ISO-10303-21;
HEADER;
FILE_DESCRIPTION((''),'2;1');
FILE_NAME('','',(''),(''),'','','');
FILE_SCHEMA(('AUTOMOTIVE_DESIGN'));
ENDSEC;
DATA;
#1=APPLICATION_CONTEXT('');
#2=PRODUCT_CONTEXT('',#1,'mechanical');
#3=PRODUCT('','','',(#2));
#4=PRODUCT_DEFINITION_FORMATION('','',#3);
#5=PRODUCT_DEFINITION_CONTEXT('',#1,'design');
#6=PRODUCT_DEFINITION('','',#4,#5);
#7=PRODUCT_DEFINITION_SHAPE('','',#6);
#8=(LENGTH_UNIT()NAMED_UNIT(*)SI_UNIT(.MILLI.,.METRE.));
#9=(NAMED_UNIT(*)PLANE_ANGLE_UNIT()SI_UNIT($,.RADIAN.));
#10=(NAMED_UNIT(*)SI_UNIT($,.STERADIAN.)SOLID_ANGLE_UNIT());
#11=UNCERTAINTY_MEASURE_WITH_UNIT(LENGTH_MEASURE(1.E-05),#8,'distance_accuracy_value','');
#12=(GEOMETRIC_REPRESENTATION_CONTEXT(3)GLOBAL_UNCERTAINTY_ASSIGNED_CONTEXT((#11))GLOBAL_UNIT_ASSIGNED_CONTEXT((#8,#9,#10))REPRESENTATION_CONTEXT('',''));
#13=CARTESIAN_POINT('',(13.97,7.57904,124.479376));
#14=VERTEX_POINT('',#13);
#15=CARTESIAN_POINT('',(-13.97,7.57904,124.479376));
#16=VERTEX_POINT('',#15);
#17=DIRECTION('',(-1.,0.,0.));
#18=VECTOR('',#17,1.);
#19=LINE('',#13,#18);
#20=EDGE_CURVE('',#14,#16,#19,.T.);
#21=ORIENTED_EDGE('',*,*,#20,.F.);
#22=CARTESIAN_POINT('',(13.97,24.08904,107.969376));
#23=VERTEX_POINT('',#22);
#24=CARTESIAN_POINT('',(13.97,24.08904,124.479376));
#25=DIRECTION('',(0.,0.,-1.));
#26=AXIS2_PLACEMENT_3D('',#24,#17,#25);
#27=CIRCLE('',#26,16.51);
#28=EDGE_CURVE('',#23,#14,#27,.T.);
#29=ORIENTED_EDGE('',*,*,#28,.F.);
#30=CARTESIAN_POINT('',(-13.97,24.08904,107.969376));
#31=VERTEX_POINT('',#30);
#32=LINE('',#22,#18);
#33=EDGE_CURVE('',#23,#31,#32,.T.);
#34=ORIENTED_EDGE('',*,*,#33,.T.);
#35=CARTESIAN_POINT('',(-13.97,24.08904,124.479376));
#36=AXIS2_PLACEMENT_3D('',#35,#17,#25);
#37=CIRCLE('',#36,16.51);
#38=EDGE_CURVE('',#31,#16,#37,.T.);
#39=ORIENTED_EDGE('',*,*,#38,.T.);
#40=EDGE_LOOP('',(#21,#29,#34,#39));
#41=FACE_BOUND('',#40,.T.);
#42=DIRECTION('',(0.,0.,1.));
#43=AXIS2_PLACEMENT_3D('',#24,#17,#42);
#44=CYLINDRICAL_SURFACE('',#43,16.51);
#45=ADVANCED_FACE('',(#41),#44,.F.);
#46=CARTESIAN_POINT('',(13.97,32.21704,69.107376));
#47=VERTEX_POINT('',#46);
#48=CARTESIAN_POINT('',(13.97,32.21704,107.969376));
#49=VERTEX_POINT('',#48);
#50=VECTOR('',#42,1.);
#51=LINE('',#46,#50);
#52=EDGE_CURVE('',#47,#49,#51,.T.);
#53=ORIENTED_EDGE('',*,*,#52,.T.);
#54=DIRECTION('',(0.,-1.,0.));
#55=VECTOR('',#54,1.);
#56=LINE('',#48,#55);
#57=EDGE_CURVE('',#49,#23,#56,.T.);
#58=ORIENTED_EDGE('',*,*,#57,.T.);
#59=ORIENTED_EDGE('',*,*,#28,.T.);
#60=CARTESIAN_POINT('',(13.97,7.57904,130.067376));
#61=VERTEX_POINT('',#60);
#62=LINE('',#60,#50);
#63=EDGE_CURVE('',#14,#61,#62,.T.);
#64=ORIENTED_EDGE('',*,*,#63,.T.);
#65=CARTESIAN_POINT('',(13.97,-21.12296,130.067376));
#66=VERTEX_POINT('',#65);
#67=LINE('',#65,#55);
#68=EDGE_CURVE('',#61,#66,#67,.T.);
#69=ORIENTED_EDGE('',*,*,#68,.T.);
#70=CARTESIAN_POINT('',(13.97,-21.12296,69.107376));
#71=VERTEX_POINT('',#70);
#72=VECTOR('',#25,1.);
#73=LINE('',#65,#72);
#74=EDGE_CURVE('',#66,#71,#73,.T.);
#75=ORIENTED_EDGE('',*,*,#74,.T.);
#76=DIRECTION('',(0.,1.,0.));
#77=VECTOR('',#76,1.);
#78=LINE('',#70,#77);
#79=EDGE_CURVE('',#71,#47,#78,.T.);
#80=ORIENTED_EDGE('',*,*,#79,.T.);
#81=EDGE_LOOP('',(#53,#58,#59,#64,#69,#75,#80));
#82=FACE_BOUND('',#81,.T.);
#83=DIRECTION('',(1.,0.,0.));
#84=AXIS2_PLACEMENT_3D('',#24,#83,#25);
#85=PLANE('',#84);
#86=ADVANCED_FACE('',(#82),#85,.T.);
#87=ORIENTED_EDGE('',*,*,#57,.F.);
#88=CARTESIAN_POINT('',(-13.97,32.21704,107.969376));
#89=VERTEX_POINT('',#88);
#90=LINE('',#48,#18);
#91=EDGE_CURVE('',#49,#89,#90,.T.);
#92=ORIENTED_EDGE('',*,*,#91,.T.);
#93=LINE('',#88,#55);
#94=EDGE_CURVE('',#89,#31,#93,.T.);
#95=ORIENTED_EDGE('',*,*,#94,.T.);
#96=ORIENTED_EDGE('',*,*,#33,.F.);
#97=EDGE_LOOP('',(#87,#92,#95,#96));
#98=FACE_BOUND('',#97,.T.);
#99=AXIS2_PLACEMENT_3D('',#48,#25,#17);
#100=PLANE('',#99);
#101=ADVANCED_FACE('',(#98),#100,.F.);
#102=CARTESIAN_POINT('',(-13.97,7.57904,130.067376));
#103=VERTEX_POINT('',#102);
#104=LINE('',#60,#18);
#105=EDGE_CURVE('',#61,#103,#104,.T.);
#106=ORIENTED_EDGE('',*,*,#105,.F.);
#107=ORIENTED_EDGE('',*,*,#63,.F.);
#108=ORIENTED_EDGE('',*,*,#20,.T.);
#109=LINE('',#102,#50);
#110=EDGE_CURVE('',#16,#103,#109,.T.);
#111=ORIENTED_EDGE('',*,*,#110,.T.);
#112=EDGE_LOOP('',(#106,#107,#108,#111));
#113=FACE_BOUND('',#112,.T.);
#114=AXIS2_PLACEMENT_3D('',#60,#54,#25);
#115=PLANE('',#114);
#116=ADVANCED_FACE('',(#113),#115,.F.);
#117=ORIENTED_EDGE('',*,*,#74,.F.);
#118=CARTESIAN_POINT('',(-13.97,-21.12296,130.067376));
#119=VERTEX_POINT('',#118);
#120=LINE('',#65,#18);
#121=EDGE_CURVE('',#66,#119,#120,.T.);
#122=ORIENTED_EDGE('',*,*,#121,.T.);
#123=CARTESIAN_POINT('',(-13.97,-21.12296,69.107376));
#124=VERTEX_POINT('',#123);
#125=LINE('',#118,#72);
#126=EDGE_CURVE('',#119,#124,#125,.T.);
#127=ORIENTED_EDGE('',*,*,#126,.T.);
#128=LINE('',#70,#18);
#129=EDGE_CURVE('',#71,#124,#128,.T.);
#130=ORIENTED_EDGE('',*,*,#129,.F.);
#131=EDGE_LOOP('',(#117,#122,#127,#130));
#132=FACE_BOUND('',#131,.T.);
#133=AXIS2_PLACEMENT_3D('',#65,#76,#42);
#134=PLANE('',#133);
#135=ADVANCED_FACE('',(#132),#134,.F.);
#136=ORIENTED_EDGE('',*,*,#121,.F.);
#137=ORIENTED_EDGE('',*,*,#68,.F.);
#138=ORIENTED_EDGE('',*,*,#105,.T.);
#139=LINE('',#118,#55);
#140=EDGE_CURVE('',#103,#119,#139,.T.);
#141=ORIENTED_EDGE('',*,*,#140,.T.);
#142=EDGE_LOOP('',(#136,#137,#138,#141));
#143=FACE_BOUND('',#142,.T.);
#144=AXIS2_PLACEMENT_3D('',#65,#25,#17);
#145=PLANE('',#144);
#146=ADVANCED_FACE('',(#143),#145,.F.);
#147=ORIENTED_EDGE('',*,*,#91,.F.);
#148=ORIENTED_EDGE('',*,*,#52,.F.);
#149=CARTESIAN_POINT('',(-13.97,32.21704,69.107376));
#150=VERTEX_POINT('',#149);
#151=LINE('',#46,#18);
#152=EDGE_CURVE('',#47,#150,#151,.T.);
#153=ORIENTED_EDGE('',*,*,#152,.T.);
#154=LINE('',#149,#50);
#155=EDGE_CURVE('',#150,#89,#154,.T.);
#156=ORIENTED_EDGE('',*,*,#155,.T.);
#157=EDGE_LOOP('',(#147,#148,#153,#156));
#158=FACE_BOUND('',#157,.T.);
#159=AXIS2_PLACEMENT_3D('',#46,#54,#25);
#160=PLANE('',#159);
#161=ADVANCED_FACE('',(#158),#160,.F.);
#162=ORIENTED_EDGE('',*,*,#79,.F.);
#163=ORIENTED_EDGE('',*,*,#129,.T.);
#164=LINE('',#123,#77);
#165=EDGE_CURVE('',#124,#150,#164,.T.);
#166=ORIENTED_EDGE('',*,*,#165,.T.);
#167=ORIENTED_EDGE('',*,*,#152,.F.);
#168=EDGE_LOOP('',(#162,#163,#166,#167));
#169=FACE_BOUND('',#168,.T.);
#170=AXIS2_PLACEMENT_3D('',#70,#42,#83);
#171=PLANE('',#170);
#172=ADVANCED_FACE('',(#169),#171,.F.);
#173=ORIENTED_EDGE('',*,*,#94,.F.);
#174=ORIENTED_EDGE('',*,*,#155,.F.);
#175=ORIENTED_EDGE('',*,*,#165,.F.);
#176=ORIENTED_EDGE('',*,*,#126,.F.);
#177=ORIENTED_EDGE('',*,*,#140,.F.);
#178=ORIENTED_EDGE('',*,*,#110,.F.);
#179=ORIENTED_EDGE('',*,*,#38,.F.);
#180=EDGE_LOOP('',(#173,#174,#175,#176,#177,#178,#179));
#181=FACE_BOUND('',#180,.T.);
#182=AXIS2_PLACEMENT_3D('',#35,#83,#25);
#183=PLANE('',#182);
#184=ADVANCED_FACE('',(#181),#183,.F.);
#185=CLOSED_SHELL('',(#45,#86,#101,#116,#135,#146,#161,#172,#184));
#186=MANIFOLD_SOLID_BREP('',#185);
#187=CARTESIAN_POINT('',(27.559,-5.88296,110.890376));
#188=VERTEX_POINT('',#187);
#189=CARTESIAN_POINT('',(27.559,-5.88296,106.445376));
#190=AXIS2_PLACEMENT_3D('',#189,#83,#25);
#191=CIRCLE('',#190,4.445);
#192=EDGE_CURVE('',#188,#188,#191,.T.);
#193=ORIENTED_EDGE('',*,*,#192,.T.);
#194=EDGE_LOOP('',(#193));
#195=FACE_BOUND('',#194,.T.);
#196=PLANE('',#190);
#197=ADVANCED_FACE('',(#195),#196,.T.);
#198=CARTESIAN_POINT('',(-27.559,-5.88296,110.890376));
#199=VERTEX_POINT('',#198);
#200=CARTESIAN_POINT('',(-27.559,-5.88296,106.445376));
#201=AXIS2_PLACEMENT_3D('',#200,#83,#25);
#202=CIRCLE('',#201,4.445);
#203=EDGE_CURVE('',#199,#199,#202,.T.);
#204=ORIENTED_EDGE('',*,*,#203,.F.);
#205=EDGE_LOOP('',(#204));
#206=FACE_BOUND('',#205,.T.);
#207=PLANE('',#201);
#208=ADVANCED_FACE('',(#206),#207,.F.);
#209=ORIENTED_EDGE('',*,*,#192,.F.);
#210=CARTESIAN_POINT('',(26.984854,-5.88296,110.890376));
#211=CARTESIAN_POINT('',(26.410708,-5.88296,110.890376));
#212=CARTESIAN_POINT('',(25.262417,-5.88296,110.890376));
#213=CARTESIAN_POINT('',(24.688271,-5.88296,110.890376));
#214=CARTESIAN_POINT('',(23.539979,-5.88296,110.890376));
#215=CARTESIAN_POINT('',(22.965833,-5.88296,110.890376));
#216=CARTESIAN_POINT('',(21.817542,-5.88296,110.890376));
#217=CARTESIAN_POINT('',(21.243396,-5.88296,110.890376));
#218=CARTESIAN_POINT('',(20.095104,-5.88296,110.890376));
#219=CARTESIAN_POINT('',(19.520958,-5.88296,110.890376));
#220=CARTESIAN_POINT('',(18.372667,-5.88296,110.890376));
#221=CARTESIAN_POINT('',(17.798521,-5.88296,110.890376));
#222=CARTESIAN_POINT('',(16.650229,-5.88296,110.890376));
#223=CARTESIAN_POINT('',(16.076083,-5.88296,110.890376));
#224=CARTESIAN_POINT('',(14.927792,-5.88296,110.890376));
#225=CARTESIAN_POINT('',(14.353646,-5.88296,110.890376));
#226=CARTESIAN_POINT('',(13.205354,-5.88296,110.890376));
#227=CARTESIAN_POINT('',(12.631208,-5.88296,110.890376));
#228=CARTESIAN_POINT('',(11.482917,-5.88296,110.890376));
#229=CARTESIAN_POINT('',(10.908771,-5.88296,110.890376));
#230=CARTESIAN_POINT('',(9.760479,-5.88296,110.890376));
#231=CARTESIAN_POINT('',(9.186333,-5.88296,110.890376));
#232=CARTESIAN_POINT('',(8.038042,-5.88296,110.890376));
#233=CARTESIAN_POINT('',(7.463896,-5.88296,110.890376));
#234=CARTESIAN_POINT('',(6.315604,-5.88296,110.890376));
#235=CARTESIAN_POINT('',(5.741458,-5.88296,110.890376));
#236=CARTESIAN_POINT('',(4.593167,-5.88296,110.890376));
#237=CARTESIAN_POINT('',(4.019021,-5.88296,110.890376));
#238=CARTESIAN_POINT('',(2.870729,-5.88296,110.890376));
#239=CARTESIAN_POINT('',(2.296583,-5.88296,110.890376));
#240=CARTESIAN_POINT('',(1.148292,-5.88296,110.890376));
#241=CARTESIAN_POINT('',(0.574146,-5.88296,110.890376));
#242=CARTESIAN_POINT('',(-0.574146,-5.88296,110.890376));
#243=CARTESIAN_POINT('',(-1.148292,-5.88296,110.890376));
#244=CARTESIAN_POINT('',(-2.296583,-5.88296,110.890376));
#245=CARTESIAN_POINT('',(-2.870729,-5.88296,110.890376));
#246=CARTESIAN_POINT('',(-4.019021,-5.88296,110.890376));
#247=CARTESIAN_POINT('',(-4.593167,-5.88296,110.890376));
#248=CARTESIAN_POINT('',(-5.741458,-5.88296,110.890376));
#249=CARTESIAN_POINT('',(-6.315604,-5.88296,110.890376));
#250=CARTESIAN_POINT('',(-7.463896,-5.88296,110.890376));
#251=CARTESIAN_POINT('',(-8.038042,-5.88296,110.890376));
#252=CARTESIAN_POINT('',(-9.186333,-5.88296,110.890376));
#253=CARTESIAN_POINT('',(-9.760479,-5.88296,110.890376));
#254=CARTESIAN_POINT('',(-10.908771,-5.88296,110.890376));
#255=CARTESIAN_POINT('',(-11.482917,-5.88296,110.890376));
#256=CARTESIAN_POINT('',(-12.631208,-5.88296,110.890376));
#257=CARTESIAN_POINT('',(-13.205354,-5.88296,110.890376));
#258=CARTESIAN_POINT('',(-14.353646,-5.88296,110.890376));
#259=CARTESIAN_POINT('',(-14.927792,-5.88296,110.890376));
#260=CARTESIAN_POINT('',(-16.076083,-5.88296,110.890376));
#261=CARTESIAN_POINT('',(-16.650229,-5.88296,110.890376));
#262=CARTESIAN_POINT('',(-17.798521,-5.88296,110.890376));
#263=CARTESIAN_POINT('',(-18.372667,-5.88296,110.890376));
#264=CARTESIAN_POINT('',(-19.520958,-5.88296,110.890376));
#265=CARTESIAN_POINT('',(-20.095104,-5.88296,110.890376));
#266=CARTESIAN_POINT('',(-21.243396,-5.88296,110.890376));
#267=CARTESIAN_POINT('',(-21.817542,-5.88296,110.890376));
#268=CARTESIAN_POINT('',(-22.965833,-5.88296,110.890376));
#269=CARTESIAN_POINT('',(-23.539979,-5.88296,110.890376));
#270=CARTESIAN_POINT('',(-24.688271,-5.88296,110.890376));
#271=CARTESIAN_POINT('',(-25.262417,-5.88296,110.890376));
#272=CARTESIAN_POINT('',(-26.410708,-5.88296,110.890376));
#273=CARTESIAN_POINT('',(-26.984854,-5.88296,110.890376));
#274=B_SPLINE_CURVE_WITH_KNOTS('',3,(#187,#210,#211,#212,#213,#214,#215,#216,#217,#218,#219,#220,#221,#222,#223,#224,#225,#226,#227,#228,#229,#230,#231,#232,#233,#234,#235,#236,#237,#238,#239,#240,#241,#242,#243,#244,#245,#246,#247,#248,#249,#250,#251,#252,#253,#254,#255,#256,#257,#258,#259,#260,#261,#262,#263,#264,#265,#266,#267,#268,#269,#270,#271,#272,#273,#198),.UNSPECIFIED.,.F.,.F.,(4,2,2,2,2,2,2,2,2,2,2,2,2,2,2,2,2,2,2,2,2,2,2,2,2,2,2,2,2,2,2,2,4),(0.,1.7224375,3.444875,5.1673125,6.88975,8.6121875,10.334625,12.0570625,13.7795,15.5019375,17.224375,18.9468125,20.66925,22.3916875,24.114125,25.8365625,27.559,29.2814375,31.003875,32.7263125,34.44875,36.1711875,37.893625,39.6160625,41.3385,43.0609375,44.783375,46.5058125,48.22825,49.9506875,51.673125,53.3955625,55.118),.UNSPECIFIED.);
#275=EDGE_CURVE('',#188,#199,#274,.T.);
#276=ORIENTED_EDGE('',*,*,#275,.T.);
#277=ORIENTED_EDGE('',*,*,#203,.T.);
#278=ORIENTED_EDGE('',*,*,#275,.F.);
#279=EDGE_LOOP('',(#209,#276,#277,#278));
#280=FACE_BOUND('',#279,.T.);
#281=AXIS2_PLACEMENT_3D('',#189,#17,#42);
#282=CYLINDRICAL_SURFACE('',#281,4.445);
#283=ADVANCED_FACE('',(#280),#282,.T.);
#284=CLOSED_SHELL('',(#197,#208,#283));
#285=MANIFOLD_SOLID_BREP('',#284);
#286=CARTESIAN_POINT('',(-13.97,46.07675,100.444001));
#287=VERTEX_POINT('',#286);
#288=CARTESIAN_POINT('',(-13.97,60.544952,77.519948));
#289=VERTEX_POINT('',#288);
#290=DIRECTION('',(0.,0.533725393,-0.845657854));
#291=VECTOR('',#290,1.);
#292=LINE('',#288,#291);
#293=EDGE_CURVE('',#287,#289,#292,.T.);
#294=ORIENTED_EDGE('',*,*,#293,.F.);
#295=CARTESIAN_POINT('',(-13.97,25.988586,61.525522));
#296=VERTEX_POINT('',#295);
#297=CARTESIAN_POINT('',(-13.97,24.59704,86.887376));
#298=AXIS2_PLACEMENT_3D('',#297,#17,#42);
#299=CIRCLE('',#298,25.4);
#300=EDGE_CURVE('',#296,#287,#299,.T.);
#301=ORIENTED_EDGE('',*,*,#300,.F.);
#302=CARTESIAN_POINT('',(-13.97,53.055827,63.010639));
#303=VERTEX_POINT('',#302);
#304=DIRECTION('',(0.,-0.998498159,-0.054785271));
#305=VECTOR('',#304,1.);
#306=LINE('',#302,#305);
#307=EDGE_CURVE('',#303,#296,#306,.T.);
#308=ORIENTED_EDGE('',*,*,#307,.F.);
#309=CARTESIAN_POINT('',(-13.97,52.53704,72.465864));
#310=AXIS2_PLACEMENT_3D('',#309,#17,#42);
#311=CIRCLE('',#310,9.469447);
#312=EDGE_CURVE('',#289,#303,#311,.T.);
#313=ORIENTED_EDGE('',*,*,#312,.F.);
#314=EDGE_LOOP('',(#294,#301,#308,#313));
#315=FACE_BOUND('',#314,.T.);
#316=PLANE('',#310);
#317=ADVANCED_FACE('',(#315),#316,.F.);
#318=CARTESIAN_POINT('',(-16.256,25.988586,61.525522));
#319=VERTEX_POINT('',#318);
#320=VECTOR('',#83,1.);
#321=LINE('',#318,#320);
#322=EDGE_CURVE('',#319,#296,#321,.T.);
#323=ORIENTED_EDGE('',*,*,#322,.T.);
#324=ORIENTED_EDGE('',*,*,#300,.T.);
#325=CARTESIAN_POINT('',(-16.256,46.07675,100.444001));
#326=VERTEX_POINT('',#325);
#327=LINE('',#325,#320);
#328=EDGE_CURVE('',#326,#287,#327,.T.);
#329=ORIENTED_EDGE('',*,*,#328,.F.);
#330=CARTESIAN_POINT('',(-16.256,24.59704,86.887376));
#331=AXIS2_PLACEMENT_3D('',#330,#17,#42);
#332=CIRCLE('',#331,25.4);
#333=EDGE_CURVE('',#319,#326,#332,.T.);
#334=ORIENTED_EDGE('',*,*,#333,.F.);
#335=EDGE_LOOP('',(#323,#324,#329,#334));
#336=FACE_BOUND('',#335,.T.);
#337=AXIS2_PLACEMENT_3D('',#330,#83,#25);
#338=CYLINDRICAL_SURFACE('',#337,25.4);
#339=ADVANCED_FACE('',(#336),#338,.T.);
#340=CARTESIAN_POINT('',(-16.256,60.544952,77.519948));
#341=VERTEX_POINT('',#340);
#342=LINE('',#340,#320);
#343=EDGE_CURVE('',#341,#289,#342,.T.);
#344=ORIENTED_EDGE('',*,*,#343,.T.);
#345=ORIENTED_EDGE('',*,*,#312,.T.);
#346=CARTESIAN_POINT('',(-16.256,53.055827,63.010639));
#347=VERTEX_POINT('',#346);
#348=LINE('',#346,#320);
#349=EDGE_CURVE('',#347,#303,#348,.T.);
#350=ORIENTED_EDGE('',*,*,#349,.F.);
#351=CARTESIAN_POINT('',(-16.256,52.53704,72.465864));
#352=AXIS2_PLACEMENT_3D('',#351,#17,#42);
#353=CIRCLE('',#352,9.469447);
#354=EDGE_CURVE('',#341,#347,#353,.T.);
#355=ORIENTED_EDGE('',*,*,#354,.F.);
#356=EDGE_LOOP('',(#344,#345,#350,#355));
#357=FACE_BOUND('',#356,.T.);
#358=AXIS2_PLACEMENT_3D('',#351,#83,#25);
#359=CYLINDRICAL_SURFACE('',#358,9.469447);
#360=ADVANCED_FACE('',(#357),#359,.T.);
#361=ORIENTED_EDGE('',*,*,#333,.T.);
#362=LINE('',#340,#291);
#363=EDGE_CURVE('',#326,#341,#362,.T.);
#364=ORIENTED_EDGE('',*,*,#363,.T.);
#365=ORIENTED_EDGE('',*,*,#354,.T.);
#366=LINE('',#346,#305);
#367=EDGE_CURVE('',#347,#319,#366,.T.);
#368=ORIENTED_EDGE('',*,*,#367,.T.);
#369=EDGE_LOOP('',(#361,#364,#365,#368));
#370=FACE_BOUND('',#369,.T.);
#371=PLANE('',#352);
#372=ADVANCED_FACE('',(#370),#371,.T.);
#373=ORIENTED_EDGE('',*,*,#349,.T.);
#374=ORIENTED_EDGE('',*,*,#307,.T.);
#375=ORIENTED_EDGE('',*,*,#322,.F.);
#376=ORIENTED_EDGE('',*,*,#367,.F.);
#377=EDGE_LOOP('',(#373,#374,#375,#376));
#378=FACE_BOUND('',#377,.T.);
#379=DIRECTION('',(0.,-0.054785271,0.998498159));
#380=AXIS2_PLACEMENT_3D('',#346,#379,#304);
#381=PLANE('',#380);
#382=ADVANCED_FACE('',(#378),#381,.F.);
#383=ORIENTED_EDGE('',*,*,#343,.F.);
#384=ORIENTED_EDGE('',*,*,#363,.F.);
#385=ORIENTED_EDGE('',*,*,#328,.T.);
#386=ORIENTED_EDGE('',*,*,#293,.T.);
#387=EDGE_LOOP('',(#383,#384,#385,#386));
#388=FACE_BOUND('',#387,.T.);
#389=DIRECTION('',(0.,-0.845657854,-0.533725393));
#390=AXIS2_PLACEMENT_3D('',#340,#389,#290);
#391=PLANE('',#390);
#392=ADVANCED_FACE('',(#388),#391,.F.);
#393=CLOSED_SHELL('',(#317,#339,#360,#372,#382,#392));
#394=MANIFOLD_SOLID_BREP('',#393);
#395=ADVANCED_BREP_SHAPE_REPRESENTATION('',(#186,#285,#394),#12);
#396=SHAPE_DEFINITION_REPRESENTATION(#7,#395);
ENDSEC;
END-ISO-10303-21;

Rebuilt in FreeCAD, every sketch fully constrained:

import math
import FreeCAD as App
import Part
import Sketcher
Q = App.Units.Quantity

doc = App.newDocument("Part")
body = doc.addObject("PartDesign::Body", "Body")

# Sketch on YZ plane
sketch1 = doc.addObject("Sketcher::SketchObject", "Sketch")
body.addObject(sketch1)
sketch1.AttachmentSupport = (doc.YZ_Plane, [""])
sketch1.MapMode = "FlatFace"
sketch1.addGeometry([
    Part.LineSegment(App.Vector(-21.12296, 130.067376, 0), App.Vector(-21.12296, 69.107376, 0)),  # 0
    Part.LineSegment(App.Vector(-21.12296, 69.107376, 0), App.Vector(32.21704, 69.107376, 0)),  # 1
    Part.LineSegment(App.Vector(32.21704, 69.107376, 0), App.Vector(32.21704, 107.969376, 0)),  # 2
    Part.LineSegment(App.Vector(32.21704, 107.969376, 0), App.Vector(24.08904, 107.969376, 0)),  # 3
    Part.ArcOfCircle(Part.Circle(App.Vector(24.08904, 124.479376, 0), App.Vector(0, 0, 1), 16.51), math.radians(180), math.radians(270)),  # 4
    Part.LineSegment(App.Vector(7.57904, 124.479376, 0), App.Vector(7.57904, 130.067376, 0)),  # 5
    Part.LineSegment(App.Vector(7.57904, 130.067376, 0), App.Vector(-21.12296, 130.067376, 0)),  # 6
], False)
sketch1.addConstraint([
    Sketcher.Constraint("Coincident", 0, 2, 1, 1),
    Sketcher.Constraint("Coincident", 1, 2, 2, 1),
    Sketcher.Constraint("Coincident", 2, 2, 3, 1),
    Sketcher.Constraint("Tangent", 3, 2, 4, 2),
    Sketcher.Constraint("Tangent", 4, 1, 5, 1),
    Sketcher.Constraint("Coincident", 5, 2, 6, 1),
    Sketcher.Constraint("Coincident", 6, 2, 0, 1),
    Sketcher.Constraint("Vertical", 0),
    Sketcher.Constraint("Horizontal", 1),
    Sketcher.Constraint("Vertical", 2),
    Sketcher.Constraint("Horizontal", 3),
    Sketcher.Constraint("Vertical", 5),
    Sketcher.Constraint("Horizontal", 6),
    Sketcher.Constraint("Radius", 4, Q("0.65 in")),
    Sketcher.Constraint("DistanceX", 1, 1, 1, 2, Q("2.1 in")),
    Sketcher.Constraint("DistanceY", 0, 2, 0, 1, Q("2.4 in")),
    Sketcher.Constraint("DistanceX", 3, 2, 3, 1, Q("0.32 in")),
    Sketcher.Constraint("DistanceY", 2, 1, 2, 2, Q("1.53 in")),
    Sketcher.Constraint("DistanceX", -1, 1, 4, 3, 24.08904),
    Sketcher.Constraint("DistanceY", -1, 1, 4, 3, 124.479376),
])
pad1 = doc.addObject("PartDesign::Pad", "Pad")
body.addObject(pad1)
pad1.Profile = sketch1
pad1.Length = Q("1.1 in")
pad1.Midplane = True
body2 = doc.addObject("PartDesign::Body", "Body001")

# Sketch on YZ plane
sketch2 = doc.addObject("Sketcher::SketchObject", "Sketch001")
body2.addObject(sketch2)
sketch2.AttachmentSupport = (doc.getObject("YZ_Plane001"), [""])
sketch2.MapMode = "FlatFace"
sketch2.addGeometry(Part.Circle(App.Vector(-5.88296, 106.445376, 0), App.Vector(0, 0, 1), 4.445), False)
sketch2.addConstraint([
    Sketcher.Constraint("Diameter", 0, Q("0.35 in")),
    Sketcher.Constraint("DistanceX", 0, 3, -1, 1, 5.88296),
    Sketcher.Constraint("DistanceY", -1, 1, 0, 3, 106.445376),
])
pad2 = doc.addObject("PartDesign::Pad", "Pad001")
body2.addObject(pad2)
pad2.Profile = sketch2
pad2.Length = Q("2.17 in")
pad2.Midplane = True
body3 = doc.addObject("PartDesign::Body", "Body002")

# Sketch on YZ plane
sketch3 = doc.addObject("Sketcher::SketchObject", "Sketch002")
body3.addObject(sketch3)
sketch3.AttachmentSupport = (doc.getObject("YZ_Plane002"), [""])
sketch3.MapMode = "FlatFace"
sketch3.AttachmentOffset = App.Placement(App.Vector(0, 0, -0.55 * 25.4), App.Rotation())
sketch3.addGeometry([
    Part.LineSegment(App.Vector(53.055827, 63.010639, 0), App.Vector(25.988586, 61.525522, 0)),
    Part.ArcOfCircle(Part.Circle(App.Vector(24.59704, 86.887376, 0), App.Vector(0, 0, 1), 25.4), math.radians(32.257512), math.radians(273.140537)),
    Part.LineSegment(App.Vector(46.07675, 100.444001, 0), App.Vector(60.544952, 77.519948, 0)),
    Part.ArcOfCircle(Part.Circle(App.Vector(52.53704, 72.465864, 0), App.Vector(0, 0, 1), 9.469447), math.radians(-86.859463), math.radians(32.257512)),
], False)
sketch3.addConstraint([
    Sketcher.Constraint("Tangent", 0, 2, 1, 2),
    Sketcher.Constraint("Tangent", 1, 1, 2, 1),
    Sketcher.Constraint("Tangent", 2, 2, 3, 2),
    Sketcher.Constraint("Tangent", 3, 1, 0, 1),
    Sketcher.Constraint("Radius", 1, Q("1 in")),
    Sketcher.Constraint("DistanceX", 1, 3, 3, 3, Q("1.1 in")),
    Sketcher.Constraint("Radius", 3, 9.469447),
    Sketcher.Constraint("DistanceY", -1, 1, 1, 1, 100.444001),
    Sketcher.Constraint("DistanceX", -1, 1, 1, 3, 24.59704),
    Sketcher.Constraint("DistanceX", -1, 1, 1, 1, 46.07675),
])
pad3 = doc.addObject("PartDesign::Pad", "Pad002")
body3.addObject(pad3)
pad3.Profile = sketch3
pad3.Length = Q("0.09 in")
pad3.Reversed = True

doc.recompute()
